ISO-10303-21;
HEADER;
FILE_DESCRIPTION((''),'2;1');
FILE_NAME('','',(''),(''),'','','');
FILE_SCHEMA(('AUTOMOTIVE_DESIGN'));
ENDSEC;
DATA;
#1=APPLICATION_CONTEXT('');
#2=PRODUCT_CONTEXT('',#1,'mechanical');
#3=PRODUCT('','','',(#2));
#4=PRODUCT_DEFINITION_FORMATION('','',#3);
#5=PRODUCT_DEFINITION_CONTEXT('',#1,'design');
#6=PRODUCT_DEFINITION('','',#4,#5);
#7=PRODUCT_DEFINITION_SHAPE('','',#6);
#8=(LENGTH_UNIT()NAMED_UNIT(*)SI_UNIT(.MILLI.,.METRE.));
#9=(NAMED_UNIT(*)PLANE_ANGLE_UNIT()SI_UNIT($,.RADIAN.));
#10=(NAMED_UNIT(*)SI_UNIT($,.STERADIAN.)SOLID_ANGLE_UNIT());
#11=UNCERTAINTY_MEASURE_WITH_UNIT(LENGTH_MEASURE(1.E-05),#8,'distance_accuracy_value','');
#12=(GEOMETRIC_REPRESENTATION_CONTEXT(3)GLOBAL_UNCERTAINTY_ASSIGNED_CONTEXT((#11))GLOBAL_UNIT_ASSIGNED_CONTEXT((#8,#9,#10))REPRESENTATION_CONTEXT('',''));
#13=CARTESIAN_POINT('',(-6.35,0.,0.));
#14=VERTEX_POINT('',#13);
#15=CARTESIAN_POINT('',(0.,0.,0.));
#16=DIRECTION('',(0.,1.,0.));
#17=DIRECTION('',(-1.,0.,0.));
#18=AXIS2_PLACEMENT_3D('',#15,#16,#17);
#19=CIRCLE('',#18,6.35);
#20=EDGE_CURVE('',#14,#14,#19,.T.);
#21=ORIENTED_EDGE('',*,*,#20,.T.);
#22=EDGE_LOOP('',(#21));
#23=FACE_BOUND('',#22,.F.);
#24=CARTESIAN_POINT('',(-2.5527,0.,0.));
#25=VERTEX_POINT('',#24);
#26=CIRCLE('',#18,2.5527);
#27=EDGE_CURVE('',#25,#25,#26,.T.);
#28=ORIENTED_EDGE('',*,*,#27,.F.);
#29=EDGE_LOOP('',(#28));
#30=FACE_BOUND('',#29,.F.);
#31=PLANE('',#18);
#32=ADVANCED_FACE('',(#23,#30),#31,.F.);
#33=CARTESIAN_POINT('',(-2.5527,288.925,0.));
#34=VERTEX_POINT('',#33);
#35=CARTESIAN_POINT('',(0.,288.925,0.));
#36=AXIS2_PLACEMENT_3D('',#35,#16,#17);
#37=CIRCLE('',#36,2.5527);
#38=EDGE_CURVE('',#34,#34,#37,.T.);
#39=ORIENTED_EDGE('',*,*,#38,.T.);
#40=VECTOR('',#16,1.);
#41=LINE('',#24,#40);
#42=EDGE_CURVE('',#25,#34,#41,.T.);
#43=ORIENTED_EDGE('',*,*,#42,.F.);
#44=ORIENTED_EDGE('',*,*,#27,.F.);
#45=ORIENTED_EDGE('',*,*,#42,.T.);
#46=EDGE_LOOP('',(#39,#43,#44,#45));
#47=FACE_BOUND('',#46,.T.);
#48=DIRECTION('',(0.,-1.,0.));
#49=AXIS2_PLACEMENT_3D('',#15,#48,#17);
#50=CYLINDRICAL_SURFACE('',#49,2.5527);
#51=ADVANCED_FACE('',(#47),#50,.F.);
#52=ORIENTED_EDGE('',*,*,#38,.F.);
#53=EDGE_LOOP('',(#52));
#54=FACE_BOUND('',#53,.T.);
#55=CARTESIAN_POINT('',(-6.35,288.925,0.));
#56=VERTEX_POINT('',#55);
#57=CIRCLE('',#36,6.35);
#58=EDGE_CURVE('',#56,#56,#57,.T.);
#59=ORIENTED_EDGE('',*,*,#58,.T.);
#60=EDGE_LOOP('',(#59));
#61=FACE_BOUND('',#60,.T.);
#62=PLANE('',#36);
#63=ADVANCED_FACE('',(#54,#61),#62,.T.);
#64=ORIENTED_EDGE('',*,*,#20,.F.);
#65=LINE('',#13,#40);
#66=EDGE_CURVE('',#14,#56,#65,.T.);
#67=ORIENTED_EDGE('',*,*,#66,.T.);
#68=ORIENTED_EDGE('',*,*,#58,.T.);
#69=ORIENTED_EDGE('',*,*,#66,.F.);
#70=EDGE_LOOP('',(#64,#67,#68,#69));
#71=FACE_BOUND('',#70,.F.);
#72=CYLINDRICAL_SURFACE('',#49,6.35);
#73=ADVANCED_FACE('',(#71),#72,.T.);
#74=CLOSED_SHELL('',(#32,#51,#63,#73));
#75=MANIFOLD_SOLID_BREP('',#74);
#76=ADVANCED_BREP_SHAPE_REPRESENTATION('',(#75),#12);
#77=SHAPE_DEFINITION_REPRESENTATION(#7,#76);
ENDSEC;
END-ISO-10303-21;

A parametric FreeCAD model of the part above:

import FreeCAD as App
import Part
import Sketcher

V = App.Vector
Q = App.Units.Quantity

doc = App.newDocument("Part")
params = doc.addObject("Spreadsheet::Sheet", "Params")
for row, (alias, value) in enumerate([
    ("sketch1_diameter", "0.5 in"),
    ("sketch1_diameter2", "0.201 in"),
    ("pad1_length", "11.375 in"),
], start=1):
    params.set(f"A{row}", alias)
    params.set(f"B{row}", "=" + value)
    params.setAlias(f"B{row}", alias)

body = doc.addObject("PartDesign::Body", "Body")

# Sketch on XZ plane
sketch1 = doc.addObject("Sketcher::SketchObject", "Sketch")
body.addObject(sketch1)
sketch1.AttachmentSupport = (doc.XZ_Plane, [""])
sketch1.MapMode = "FlatFace"
sketch1.addGeometry(Part.Circle(V(0, 0, 0), V(0, 0, 1), 6.3), False)
sketch1.addGeometry(Part.Circle(V(0, 0, 0), V(0, 0, 1), 2.6), False)
sketch1.addConstraint(Sketcher.Constraint("Coincident", 0, 3, -1, 1))
sketch1.addConstraint(Sketcher.Constraint("Coincident", 1, 3, -1, 1))
sketch1.addConstraint(Sketcher.Constraint("Diameter", 0, Q("0.5 in")))
sketch1.addConstraint(Sketcher.Constraint("Diameter", 1, Q("0.201 in")))
sketch1.setExpression("Constraints[2]", "Params.sketch1_diameter")
sketch1.setExpression("Constraints[3]", "Params.sketch1_diameter2")
pad1 = doc.addObject("PartDesign::Pad", "Pad")
body.addObject(pad1)
pad1.Profile = sketch1
pad1.setExpression("Length", "Params.pad1_length")
pad1.Reversed = True

doc.recompute()
